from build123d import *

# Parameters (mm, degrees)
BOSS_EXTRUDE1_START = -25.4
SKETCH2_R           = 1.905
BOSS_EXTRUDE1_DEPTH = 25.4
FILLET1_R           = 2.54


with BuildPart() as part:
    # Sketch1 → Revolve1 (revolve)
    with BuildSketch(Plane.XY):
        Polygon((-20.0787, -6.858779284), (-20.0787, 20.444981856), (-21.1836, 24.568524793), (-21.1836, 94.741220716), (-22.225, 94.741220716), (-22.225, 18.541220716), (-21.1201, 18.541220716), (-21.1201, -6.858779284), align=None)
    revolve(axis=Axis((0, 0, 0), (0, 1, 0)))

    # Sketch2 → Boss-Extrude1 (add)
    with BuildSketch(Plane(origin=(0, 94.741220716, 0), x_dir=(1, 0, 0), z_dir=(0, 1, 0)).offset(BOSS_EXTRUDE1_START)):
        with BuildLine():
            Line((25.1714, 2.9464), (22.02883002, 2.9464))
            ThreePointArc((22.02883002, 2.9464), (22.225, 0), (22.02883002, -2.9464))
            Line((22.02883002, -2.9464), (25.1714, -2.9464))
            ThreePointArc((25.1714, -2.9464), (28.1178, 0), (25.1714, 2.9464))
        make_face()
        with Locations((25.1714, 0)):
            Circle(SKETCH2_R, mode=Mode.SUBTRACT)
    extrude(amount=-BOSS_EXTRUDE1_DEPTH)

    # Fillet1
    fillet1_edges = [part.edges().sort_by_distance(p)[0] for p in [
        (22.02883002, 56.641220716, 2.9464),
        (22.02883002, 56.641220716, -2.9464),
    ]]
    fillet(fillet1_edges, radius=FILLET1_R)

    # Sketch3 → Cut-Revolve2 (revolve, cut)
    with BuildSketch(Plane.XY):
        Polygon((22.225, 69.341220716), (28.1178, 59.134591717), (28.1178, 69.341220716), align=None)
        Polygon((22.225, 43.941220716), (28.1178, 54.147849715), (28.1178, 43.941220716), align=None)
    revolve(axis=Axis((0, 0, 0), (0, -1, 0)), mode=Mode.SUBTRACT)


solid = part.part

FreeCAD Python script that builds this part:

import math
import FreeCAD as App
import Part
import Sketcher
Q = App.Units.Quantity


def edges_at(feature, points):
    """Names of the edges that pass closest to the given points."""
    edges = feature.Shape.Edges
    near = lambda p: min(range(len(edges)), key=lambda i: edges[i].distToShape(Part.Vertex(*p))[0])
    return sorted({f"Edge{near(p) + 1}" for p in points})


def add_polygon(sketch, points):
    """Adds a closed chain of lines whose ends are joined by coincident constraints."""
    first, n = sketch.GeometryCount, len(points)
    for a, b in zip(points, points[1:] + points[:1]):
        sketch.addGeometry(Part.LineSegment(App.Vector(*a, 0), App.Vector(*b, 0)), False)
    for i in range(n):
        sketch.addConstraint(Sketcher.Constraint("Coincident", first + i, 2, first + (i + 1) % n, 1))

doc = App.newDocument("Part")
body = doc.addObject("PartDesign::Body", "Body")

sketch1 = doc.addObject("Sketcher::SketchObject", "Sketch")
body.addObject(sketch1)
sketch1.AttachmentSupport = (doc.XY_Plane, [""])
sketch1.MapMode = "FlatFace"
add_polygon(sketch1, [(-20.1, -6.9), (-20.1, 20.4), (-21.2, 24.6), (-21.2, 94.7), (-22.2, 94.7), (-22.2, 18.5), (-21.1, 18.5), (-21.1, -6.9)])
sketch1.addConstraint([
    Sketcher.Constraint("Vertical", 0),
    Sketcher.Constraint("Vertical", 2),
    Sketcher.Constraint("Horizontal", 3),
    Sketcher.Constraint("Vertical", 4),
    Sketcher.Constraint("Horizontal", 5),
    Sketcher.Constraint("Vertical", 6),
    Sketcher.Constraint("Horizontal", 7),
    Sketcher.Constraint("Equal", 3, 7),
    Sketcher.Constraint("DistanceY", 4, 2, 4, 1, Q("3 in")),
    Sketcher.Constraint("DistanceY", 6, 2, 6, 1, Q("1 in")),
    Sketcher.Constraint("Angle", 1, Q("105 deg")),
    Sketcher.Constraint("DistanceX", 3, 2, 3, 1, Q("0.041 in")),
    Sketcher.Constraint("DistanceX", 5, 1, 5, 2, Q("0.0435 in")),
    Sketcher.Constraint("DistanceX", 1, 2, -1, 1, Q("0.834 in")),
    Sketcher.Constraint("DistanceY", 0, 1, 0, 2, 27.303761),
    Sketcher.Constraint("DistanceY", -1, 1, 0, 2, 20.444982),
])
revolution = doc.addObject("PartDesign::Revolution", "Revolution")
body.addObject(revolution)
revolution.Profile = sketch1
revolution.ReferenceAxis = (sketch1, ["V_Axis"])
revolution.Angle = 360

sketch2 = doc.addObject("Sketcher::SketchObject", "Sketch001")
body.addObject(sketch2)
sketch2.AttachmentSupport = (doc.XZ_Plane, [""])
sketch2.MapMode = "FlatFace"
sketch2.AttachmentOffset = App.Placement(App.Vector(0, 0, -69.341221), App.Rotation())
sketch2.addGeometry([
    Part.LineSegment(App.Vector(25.2, -2.9, 0), App.Vector(22, -2.9, 0)),
    Part.ArcOfCircle(Part.Circle(App.Vector(0, 0, 0), App.Vector(0, 0, 1), 22.2), math.radians(-7.62), math.radians(7.62)),
    Part.LineSegment(App.Vector(22, 2.9, 0), App.Vector(25.2, 2.9, 0)),
    Part.ArcOfCircle(Part.Circle(App.Vector(25.2, 0, 0), App.Vector(0, 0, 1), 2.9), math.radians(-90), math.radians(90)),
    Part.Circle(App.Vector(25.2, 0, 0), App.Vector(0, 0, 1), 1.9),
], False)
sketch2.addConstraint([
    Sketcher.Constraint("Coincident", 0, 2, 1, 1),
    Sketcher.Constraint("Coincident", 1, 2, 2, 1),
    Sketcher.Constraint("Tangent", 2, 2, 3, 2),
    Sketcher.Constraint("Tangent", 3, 1, 0, 1),
    Sketcher.Constraint("Horizontal", 0),
    Sketcher.Constraint("Horizontal", 2),
    Sketcher.Constraint("Coincident", 1, 3, -1, 1),
    Sketcher.Constraint("Coincident", 4, 3, 3, 3),
    Sketcher.Constraint("PointOnObject", 3, 3, -1),
    Sketcher.Constraint("Diameter", 4, Q("0.15 in")),
    Sketcher.Constraint("Radius", 1, Q("0.875 in")),
    Sketcher.Constraint("Radius", 3, Q("0.116 in")),
    Sketcher.Constraint("DistanceX", -1, 1, 3, 3, Q("0.991 in")),
])
pad1 = doc.addObject("PartDesign::Pad", "Pad")
body.addObject(pad1)
pad1.Profile = sketch2
pad1.Length = Q("1 in")
doc.recompute()

fillet = doc.addObject("PartDesign::Fillet", "Fillet")
body.addObject(fillet)
fillet.Base = (pad1, edges_at(pad1, [(22.029, 56.641, 2.946), (22.029, 56.641, -2.946)]))
fillet.Radius = Q("0.1 in")

sketch3 = doc.addObject("Sketcher::SketchObject", "Sketch002")
body.addObject(sketch3)
sketch3.AttachmentSupport = (doc.XY_Plane, [""])
sketch3.MapMode = "FlatFace"
add_polygon(sketch3, [(22, 69), (28, 59), (28, 69)])
add_polygon(sketch3, [(28, 54), (22, 44), (28, 44)])
sketch3.addConstraint([
    Sketcher.Constraint("Vertical", 1),
    Sketcher.Constraint("Horizontal", 2),
    Sketcher.Constraint("Horizontal", 4),
    Sketcher.Constraint("Vertical", 5),
    Sketcher.Constraint("Vertical", 2, 2, 3, 2),
    Sketcher.Constraint("Vertical", 1, 2, 4, 2),
    Sketcher.Constraint("Equal", 1, 5),
    Sketcher.Constraint("Angle", 0, Q("-60 deg")),
    Sketcher.Constraint("DistanceY", 3, 2, 2, 2, Q("1 in")),
    Sketcher.Constraint("DistanceX", 2, 2, 2, 1, Q("0.232 in")),
    Sketcher.Constraint("DistanceX", -1, 1, 0, 2, Q("1.107 in")),
    Sketcher.Constraint("DistanceY", -1, 1, 0, 2, 59.134592),
])
groove = doc.addObject("PartDesign::Groove", "Groove")
body.addObject(groove)
groove.Profile = sketch3
groove.ReferenceAxis = (sketch3, ["V_Axis"])
groove.Angle = 360

doc.recompute()
